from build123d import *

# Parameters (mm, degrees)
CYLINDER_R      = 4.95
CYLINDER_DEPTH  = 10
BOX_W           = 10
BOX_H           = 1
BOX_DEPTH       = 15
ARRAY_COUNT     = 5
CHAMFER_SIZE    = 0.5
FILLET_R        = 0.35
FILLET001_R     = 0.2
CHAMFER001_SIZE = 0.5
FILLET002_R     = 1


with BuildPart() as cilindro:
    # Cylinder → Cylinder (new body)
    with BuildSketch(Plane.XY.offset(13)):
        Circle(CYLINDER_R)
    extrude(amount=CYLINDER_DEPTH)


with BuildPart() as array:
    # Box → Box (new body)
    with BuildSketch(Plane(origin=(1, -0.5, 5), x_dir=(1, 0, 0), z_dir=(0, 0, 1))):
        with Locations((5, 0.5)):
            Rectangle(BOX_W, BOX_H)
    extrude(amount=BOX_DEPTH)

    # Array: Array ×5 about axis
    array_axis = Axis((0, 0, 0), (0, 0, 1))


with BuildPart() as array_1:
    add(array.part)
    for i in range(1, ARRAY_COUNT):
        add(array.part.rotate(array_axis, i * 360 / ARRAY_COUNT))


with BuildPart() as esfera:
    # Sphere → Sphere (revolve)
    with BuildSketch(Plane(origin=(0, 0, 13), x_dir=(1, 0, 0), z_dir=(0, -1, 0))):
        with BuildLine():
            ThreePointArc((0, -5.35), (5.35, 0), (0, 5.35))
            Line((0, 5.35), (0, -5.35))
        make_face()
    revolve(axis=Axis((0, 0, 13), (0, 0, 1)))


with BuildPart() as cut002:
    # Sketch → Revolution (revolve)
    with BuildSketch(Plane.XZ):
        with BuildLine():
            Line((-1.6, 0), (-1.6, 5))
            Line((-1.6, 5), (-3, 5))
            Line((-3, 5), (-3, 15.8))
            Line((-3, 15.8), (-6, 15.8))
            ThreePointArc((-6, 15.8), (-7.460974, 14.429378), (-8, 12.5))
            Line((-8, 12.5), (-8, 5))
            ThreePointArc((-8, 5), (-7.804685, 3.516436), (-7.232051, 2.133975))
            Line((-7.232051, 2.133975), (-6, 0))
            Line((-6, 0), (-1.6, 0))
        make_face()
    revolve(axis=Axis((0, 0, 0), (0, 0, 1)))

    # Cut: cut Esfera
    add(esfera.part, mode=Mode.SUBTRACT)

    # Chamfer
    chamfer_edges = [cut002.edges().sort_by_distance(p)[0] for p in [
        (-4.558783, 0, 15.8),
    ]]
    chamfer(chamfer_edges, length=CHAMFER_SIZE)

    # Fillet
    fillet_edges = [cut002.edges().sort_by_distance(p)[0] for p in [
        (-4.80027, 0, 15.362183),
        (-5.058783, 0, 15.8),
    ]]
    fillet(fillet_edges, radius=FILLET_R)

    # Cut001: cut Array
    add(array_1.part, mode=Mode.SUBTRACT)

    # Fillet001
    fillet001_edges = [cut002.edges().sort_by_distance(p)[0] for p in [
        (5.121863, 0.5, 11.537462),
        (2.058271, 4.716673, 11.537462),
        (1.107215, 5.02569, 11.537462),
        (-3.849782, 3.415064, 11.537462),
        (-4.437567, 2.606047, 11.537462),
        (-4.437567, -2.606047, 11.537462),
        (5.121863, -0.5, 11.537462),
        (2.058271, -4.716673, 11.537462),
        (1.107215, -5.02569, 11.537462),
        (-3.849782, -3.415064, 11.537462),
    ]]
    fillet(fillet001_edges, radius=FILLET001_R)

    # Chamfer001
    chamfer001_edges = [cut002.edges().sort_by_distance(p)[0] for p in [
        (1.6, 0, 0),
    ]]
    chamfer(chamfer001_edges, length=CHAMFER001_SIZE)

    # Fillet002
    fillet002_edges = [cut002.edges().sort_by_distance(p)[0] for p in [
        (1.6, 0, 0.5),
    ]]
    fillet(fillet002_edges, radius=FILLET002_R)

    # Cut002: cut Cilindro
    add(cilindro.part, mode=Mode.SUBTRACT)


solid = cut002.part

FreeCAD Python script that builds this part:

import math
import FreeCAD as App
import Part
import Sketcher

V = App.Vector
Q = App.Units.Quantity


def edges_at(feature, points):
    """Names of the edges that pass closest to the given points."""
    edges = feature.Shape.Edges
    near = lambda p: min(range(len(edges)), key=lambda i: edges[i].distToShape(Part.Vertex(*p))[0])
    return sorted({f"Edge{near(p) + 1}" for p in points})


def add_polygon(sketch, points):
    """Adds a closed chain of lines whose ends are joined by coincident constraints."""
    first, n = sketch.GeometryCount, len(points)
    for a, b in zip(points, points[1:] + points[:1]):
        sketch.addGeometry(Part.LineSegment(App.Vector(*a, 0), App.Vector(*b, 0)), False)
    for i in range(n):
        sketch.addConstraint(Sketcher.Constraint("Coincident", first + i, 2, first + (i + 1) % n, 1))

doc = App.newDocument("Part")
params = doc.addObject("Spreadsheet::Sheet", "Params")
for row, (alias, value) in enumerate([
    ("sketch1_diameter", "9.9 mm"),
    ("pad1_length", "10 mm"),
    ("sketch2_width", "10 mm"),
    ("sketch2_height", "1 mm"),
    ("pad2_length", "15 mm"),
    ("sketch3_radius", "5.35 mm"),
    ("revolution_angle", "360 deg"),
    ("sketch4_width", "3 mm"),
    ("sketch4_height", "5 mm"),
    ("sketch4_width2", "1.4 mm"),
    ("sketch4_height2", "10.8 mm"),
    ("sketch4_height3", "7.5 mm"),
    ("revolution2_angle", "360 deg"),
    ("chamfer_size", "0.5 mm"),
    ("fillet_radius", "0.35 mm"),
    ("fillet2_radius", "0.2 mm"),
    ("chamfer2_size", "0.5 mm"),
    ("fillet3_radius", "1 mm"),
], start=1):
    params.set(f"A{row}", alias)
    params.set(f"B{row}", "=" + value)
    params.setAlias(f"B{row}", alias)

body = doc.addObject("PartDesign::Body", "Body")

# Sketch on XY plane
sketch1 = body.newObject("Sketcher::SketchObject", "Sketch")
sketch1.AttachmentSupport = (doc.getObject("XY_Plane"), [""])
sketch1.MapMode = "FlatFace"
sketch1.AttachmentOffset = App.Placement(V(0, 0, 13), App.Rotation())
sketch1.addGeometry(Part.Circle(V(0, 0, 0), V(0, 0, 1), 5), False)
sketch1.addConstraint(Sketcher.Constraint("Coincident", 0, 3, -1, 1))
sketch1.addConstraint(Sketcher.Constraint("Diameter", 0, Q("9.9 mm")))
sketch1.setExpression("Constraints[1]", "Params.sketch1_diameter")
pad1 = body.newObject("PartDesign::Pad", "Pad")
pad1.Profile = sketch1
pad1.setExpression("Length", "Params.pad1_length")
body2 = doc.addObject("PartDesign::Body", "Body001")

# Sketch on XY plane
sketch2 = body2.newObject("Sketcher::SketchObject", "Sketch001")
sketch2.AttachmentSupport = (doc.getObject("XY_Plane001"), [""])
sketch2.MapMode = "FlatFace"
sketch2.AttachmentOffset = App.Placement(V(0, 0, 5), App.Rotation())
add_polygon(sketch2, [(1, 0.5), (1, -0.5), (11, -0.5), (11, 0.5)])  # lines 0-3
sketch2.addConstraint(Sketcher.Constraint("Vertical", 0))
sketch2.addConstraint(Sketcher.Constraint("Horizontal", 1))
sketch2.addConstraint(Sketcher.Constraint("Vertical", 2))
sketch2.addConstraint(Sketcher.Constraint("Horizontal", 3))
sketch2.addConstraint(Sketcher.Constraint("DistanceX", 1, 1, 1, 2, Q("10 mm")))
sketch2.addConstraint(Sketcher.Constraint("DistanceY", 0, 2, 0, 1, Q("1 mm")))
sketch2.addConstraint(Sketcher.Constraint("DistanceX", -1, 1, 0, 2, Q("1 mm")))
sketch2.addConstraint(Sketcher.Constraint("DistanceY", 0, 2, -1, 1, Q("0.5 mm")))
sketch2.setExpression("Constraints[8]", "Params.sketch2_width")
sketch2.setExpression("Constraints[9]", "Params.sketch2_height")
pad2 = body2.newObject("PartDesign::Pad", "Pad001")
pad2.Profile = sketch2
pad2.setExpression("Length", "Params.pad2_length")
body3 = doc.addObject("PartDesign::Body", "Body002")
body3.AllowCompound = True
doc.recompute()

body3.BaseFeature = body2
doc.recompute()

body4 = doc.addObject("PartDesign::Body", "Body003")
body4.BaseFeature = body2
body4.Placement = App.Placement(V(0, 0, 0), App.Rotation(V(0, 0, 1), 72))
boolean = body3.newObject("PartDesign::Boolean", "Boolean")
boolean.Type = "Fuse"
boolean.addObjects([body4])
doc.recompute()

body5 = doc.addObject("PartDesign::Body", "Body004")
body5.BaseFeature = body2
body5.Placement = App.Placement(V(0, 0, 0), App.Rotation(V(0, 0, 1), 144))
boolean2 = body3.newObject("PartDesign::Boolean", "Boolean001")
boolean2.Type = "Fuse"
boolean2.addObjects([body5])
doc.recompute()

body6 = doc.addObject("PartDesign::Body", "Body005")
body6.BaseFeature = body2
body6.Placement = App.Placement(V(0, 0, 0), App.Rotation(V(0, 0, 1), 216))
boolean3 = body3.newObject("PartDesign::Boolean", "Boolean002")
boolean3.Type = "Fuse"
boolean3.addObjects([body6])
doc.recompute()

body2.Placement = App.Placement(V(0, 0, 0), App.Rotation(V(0, 0, 1), 288))
boolean4 = body3.newObject("PartDesign::Boolean", "Boolean003")
boolean4.Type = "Fuse"
boolean4.addObjects([body2])
body7 = doc.addObject("PartDesign::Body", "Body006")

# Sketch on XZ plane
sketch3 = body7.newObject("Sketcher::SketchObject", "Sketch002")
sketch3.AttachmentSupport = (doc.getObject("XZ_Plane006"), [""])
sketch3.MapMode = "FlatFace"
sketch3.addGeometry(Part.ArcOfCircle(Part.Circle(V(0, 13, 0), V(0, 0, 1), 5), math.radians(-90), math.radians(90)), False)
sketch3.addGeometry(Part.LineSegment(V(0, 18, 0), V(0, 8, 0)), False)
sketch3.addConstraint(Sketcher.Constraint("Coincident", 0, 1, 1, 2))
sketch3.addConstraint(Sketcher.Constraint("Coincident", 1, 1, 0, 2))
sketch3.addConstraint(Sketcher.Constraint("Vertical", 1))
sketch3.addConstraint(Sketcher.Constraint("PointOnObject", 0, 3, -2))
sketch3.addConstraint(Sketcher.Constraint("PointOnObject", 0, 1, -2))
sketch3.addConstraint(Sketcher.Constraint("Radius", 0, Q("5.35 mm")))
sketch3.addConstraint(Sketcher.Constraint("DistanceY", -1, 1, 0, 3, Q("13 mm")))
sketch3.setExpression("Constraints[5]", "Params.sketch3_radius")
revolution = body7.newObject("PartDesign::Revolution", "Revolution")
revolution.Profile = sketch3
revolution.ReferenceAxis = (sketch3, ["V_Axis"])
revolution.setExpression("Angle", "Params.revolution_angle")
body8 = doc.addObject("PartDesign::Body", "Body007")

# Sketch on XZ plane
sketch4 = body8.newObject("Sketcher::SketchObject", "Sketch003")
sketch4.AttachmentSupport = (doc.getObject("XZ_Plane007"), [""])
sketch4.MapMode = "FlatFace"
sketch4.addGeometry(Part.LineSegment(V(-1.6, 0, 0), V(-1.6, 5, 0)), False)
sketch4.addGeometry(Part.LineSegment(V(-1.6, 5, 0), V(-3, 5, 0)), False)
sketch4.addGeometry(Part.LineSegment(V(-3, 5, 0), V(-3, 15.8, 0)), False)
sketch4.addGeometry(Part.LineSegment(V(-3, 15.8, 0), V(-6, 15.8, 0)), False)
sketch4.addGeometry(Part.ArcOfCircle(Part.Circle(V(-4.3, 12.5, 0), V(0, 0, 1), 3.7), math.radians(118), math.radians(180)), False)
sketch4.addGeometry(Part.LineSegment(V(-8, 12.5, 0), V(-8, 5, 0)), False)
sketch4.addGeometry(Part.ArcOfCircle(Part.Circle(V(-2.3, 5, 0), V(0, 0, 1), 5.7), math.radians(-180), math.radians(-150)), False)
sketch4.addGeometry(Part.LineSegment(V(-7.2, 2.1, 0), V(-6, 0, 0)), False)
sketch4.addGeometry(Part.LineSegment(V(-6, 0, 0), V(-1.6, 0, 0)), False)
sketch4.addConstraint(Sketcher.Constraint("Coincident", 0, 2, 1, 1))
sketch4.addConstraint(Sketcher.Constraint("Coincident", 1, 2, 2, 1))
sketch4.addConstraint(Sketcher.Constraint("Coincident", 2, 2, 3, 1))
sketch4.addConstraint(Sketcher.Constraint("Coincident", 3, 2, 4, 1))
sketch4.addConstraint(Sketcher.Constraint("Tangent", 4, 2, 5, 1))
sketch4.addConstraint(Sketcher.Constraint("Tangent", 5, 2, 6, 1))
sketch4.addConstraint(Sketcher.Constraint("Tangent", 6, 2, 7, 1))
sketch4.addConstraint(Sketcher.Constraint("Coincident", 7, 2, 8, 1))
sketch4.addConstraint(Sketcher.Constraint("Coincident", 8, 2, 0, 1))
sketch4.addConstraint(Sketcher.Constraint("Vertical", 0))
sketch4.addConstraint(Sketcher.Constraint("Horizontal", 1))
sketch4.addConstraint(Sketcher.Constraint("Vertical", 2))
sketch4.addConstraint(Sketcher.Constraint("Horizontal", 3))
sketch4.addConstraint(Sketcher.Constraint("Vertical", 5))
sketch4.addConstraint(Sketcher.Constraint("Horizontal", 8))
sketch4.addConstraint(Sketcher.Constraint("PointOnObject", 7, 2, -1))
sketch4.addConstraint(Sketcher.Constraint("Horizontal", 6, 3, 0, 2))
sketch4.addConstraint(Sketcher.Constraint("Vertical", 3, 2, 7, 2))
sketch4.addConstraint(Sketcher.Constraint("DistanceX", 3, 2, 3, 1, Q("3 mm")))
sketch4.addConstraint(Sketcher.Constraint("DistanceY", 0, 1, 0, 2, Q("5 mm")))
sketch4.addConstraint(Sketcher.Constraint("Angle", 7, Q("-60.000001 deg")))
sketch4.addConstraint(Sketcher.Constraint("DistanceX", 1, 2, 1, 1, Q("1.4 mm")))
sketch4.addConstraint(Sketcher.Constraint("DistanceY", 2, 1, 2, 2, Q("10.8 mm")))
sketch4.addConstraint(Sketcher.Constraint("DistanceY", 5, 2, 5, 1, Q("7.5 mm")))
sketch4.addConstraint(Sketcher.Constraint("DistanceX", 1, 2, -1, 1, Q("3 mm")))
sketch4.addConstraint(Sketcher.Constraint("DistanceX", 4, 2, -1, 1, Q("8 mm")))
sketch4.setExpression("Constraints[18]", "Params.sketch4_width")
sketch4.setExpression("Constraints[19]", "Params.sketch4_height")
sketch4.setExpression("Constraints[21]", "Params.sketch4_width2")
sketch4.setExpression("Constraints[22]", "Params.sketch4_height2")
sketch4.setExpression("Constraints[23]", "Params.sketch4_height3")
revolution2 = body8.newObject("PartDesign::Revolution", "Revolution001")
revolution2.Profile = sketch4
revolution2.ReferenceAxis = (sketch4, ["V_Axis"])
revolution2.setExpression("Angle", "Params.revolution2_angle")
doc.recompute()

boolean5 = body8.newObject("PartDesign::Boolean", "Boolean004")
boolean5.Type = "Cut"
boolean5.addObjects([body7])
doc.recompute()

chamfer = body8.newObject("PartDesign::Chamfer", "Chamfer")
chamfer.Base = (boolean5, edges_at(boolean5, [(-4.559, 0, 15.8)]))
chamfer.setExpression("Size", "Params.chamfer_size")
doc.recompute()

fillet = body8.newObject("PartDesign::Fillet", "Fillet")
fillet.Base = (chamfer, edges_at(chamfer, [(-4.8, 0, 15.362), (-5.059, 0, 15.8)]))
fillet.setExpression("Radius", "Params.fillet_radius")
doc.recompute()

boolean6 = body8.newObject("PartDesign::Boolean", "Boolean005")
boolean6.Type = "Cut"
boolean6.addObjects([body3])
doc.recompute()

fillet2 = body8.newObject("PartDesign::Fillet", "Fillet001")
fillet2.Base = (boolean6, edges_at(boolean6, [
    (5.122, 0.5, 11.537),
    (2.058, 4.717, 11.537),
    (1.107, 5.026, 11.537),
    (-3.85, 3.415, 11.537),
    (-4.438, 2.606, 11.537),
    (-4.438, -2.606, 11.537),
    (5.122, -0.5, 11.537),
    (2.058, -4.717, 11.537),
    (1.107, -5.026, 11.537),
    (-3.85, -3.415, 11.537),
]))
fillet2.setExpression("Radius", "Params.fillet2_radius")
doc.recompute()

chamfer2 = body8.newObject("PartDesign::Chamfer", "Chamfer001")
chamfer2.Base = (fillet2, edges_at(fillet2, [(1.6, 0, 0)]))
chamfer2.setExpression("Size", "Params.chamfer2_size")
doc.recompute()

fillet3 = body8.newObject("PartDesign::Fillet", "Fillet002")
fillet3.Base = (chamfer2, edges_at(chamfer2, [(1.6, 0, 0.5)]))
fillet3.setExpression("Radius", "Params.fillet3_radius")
doc.recompute()

boolean7 = body8.newObject("PartDesign::Boolean", "Boolean006")
boolean7.Type = "Cut"
boolean7.addObjects([body])

doc.recompute()
